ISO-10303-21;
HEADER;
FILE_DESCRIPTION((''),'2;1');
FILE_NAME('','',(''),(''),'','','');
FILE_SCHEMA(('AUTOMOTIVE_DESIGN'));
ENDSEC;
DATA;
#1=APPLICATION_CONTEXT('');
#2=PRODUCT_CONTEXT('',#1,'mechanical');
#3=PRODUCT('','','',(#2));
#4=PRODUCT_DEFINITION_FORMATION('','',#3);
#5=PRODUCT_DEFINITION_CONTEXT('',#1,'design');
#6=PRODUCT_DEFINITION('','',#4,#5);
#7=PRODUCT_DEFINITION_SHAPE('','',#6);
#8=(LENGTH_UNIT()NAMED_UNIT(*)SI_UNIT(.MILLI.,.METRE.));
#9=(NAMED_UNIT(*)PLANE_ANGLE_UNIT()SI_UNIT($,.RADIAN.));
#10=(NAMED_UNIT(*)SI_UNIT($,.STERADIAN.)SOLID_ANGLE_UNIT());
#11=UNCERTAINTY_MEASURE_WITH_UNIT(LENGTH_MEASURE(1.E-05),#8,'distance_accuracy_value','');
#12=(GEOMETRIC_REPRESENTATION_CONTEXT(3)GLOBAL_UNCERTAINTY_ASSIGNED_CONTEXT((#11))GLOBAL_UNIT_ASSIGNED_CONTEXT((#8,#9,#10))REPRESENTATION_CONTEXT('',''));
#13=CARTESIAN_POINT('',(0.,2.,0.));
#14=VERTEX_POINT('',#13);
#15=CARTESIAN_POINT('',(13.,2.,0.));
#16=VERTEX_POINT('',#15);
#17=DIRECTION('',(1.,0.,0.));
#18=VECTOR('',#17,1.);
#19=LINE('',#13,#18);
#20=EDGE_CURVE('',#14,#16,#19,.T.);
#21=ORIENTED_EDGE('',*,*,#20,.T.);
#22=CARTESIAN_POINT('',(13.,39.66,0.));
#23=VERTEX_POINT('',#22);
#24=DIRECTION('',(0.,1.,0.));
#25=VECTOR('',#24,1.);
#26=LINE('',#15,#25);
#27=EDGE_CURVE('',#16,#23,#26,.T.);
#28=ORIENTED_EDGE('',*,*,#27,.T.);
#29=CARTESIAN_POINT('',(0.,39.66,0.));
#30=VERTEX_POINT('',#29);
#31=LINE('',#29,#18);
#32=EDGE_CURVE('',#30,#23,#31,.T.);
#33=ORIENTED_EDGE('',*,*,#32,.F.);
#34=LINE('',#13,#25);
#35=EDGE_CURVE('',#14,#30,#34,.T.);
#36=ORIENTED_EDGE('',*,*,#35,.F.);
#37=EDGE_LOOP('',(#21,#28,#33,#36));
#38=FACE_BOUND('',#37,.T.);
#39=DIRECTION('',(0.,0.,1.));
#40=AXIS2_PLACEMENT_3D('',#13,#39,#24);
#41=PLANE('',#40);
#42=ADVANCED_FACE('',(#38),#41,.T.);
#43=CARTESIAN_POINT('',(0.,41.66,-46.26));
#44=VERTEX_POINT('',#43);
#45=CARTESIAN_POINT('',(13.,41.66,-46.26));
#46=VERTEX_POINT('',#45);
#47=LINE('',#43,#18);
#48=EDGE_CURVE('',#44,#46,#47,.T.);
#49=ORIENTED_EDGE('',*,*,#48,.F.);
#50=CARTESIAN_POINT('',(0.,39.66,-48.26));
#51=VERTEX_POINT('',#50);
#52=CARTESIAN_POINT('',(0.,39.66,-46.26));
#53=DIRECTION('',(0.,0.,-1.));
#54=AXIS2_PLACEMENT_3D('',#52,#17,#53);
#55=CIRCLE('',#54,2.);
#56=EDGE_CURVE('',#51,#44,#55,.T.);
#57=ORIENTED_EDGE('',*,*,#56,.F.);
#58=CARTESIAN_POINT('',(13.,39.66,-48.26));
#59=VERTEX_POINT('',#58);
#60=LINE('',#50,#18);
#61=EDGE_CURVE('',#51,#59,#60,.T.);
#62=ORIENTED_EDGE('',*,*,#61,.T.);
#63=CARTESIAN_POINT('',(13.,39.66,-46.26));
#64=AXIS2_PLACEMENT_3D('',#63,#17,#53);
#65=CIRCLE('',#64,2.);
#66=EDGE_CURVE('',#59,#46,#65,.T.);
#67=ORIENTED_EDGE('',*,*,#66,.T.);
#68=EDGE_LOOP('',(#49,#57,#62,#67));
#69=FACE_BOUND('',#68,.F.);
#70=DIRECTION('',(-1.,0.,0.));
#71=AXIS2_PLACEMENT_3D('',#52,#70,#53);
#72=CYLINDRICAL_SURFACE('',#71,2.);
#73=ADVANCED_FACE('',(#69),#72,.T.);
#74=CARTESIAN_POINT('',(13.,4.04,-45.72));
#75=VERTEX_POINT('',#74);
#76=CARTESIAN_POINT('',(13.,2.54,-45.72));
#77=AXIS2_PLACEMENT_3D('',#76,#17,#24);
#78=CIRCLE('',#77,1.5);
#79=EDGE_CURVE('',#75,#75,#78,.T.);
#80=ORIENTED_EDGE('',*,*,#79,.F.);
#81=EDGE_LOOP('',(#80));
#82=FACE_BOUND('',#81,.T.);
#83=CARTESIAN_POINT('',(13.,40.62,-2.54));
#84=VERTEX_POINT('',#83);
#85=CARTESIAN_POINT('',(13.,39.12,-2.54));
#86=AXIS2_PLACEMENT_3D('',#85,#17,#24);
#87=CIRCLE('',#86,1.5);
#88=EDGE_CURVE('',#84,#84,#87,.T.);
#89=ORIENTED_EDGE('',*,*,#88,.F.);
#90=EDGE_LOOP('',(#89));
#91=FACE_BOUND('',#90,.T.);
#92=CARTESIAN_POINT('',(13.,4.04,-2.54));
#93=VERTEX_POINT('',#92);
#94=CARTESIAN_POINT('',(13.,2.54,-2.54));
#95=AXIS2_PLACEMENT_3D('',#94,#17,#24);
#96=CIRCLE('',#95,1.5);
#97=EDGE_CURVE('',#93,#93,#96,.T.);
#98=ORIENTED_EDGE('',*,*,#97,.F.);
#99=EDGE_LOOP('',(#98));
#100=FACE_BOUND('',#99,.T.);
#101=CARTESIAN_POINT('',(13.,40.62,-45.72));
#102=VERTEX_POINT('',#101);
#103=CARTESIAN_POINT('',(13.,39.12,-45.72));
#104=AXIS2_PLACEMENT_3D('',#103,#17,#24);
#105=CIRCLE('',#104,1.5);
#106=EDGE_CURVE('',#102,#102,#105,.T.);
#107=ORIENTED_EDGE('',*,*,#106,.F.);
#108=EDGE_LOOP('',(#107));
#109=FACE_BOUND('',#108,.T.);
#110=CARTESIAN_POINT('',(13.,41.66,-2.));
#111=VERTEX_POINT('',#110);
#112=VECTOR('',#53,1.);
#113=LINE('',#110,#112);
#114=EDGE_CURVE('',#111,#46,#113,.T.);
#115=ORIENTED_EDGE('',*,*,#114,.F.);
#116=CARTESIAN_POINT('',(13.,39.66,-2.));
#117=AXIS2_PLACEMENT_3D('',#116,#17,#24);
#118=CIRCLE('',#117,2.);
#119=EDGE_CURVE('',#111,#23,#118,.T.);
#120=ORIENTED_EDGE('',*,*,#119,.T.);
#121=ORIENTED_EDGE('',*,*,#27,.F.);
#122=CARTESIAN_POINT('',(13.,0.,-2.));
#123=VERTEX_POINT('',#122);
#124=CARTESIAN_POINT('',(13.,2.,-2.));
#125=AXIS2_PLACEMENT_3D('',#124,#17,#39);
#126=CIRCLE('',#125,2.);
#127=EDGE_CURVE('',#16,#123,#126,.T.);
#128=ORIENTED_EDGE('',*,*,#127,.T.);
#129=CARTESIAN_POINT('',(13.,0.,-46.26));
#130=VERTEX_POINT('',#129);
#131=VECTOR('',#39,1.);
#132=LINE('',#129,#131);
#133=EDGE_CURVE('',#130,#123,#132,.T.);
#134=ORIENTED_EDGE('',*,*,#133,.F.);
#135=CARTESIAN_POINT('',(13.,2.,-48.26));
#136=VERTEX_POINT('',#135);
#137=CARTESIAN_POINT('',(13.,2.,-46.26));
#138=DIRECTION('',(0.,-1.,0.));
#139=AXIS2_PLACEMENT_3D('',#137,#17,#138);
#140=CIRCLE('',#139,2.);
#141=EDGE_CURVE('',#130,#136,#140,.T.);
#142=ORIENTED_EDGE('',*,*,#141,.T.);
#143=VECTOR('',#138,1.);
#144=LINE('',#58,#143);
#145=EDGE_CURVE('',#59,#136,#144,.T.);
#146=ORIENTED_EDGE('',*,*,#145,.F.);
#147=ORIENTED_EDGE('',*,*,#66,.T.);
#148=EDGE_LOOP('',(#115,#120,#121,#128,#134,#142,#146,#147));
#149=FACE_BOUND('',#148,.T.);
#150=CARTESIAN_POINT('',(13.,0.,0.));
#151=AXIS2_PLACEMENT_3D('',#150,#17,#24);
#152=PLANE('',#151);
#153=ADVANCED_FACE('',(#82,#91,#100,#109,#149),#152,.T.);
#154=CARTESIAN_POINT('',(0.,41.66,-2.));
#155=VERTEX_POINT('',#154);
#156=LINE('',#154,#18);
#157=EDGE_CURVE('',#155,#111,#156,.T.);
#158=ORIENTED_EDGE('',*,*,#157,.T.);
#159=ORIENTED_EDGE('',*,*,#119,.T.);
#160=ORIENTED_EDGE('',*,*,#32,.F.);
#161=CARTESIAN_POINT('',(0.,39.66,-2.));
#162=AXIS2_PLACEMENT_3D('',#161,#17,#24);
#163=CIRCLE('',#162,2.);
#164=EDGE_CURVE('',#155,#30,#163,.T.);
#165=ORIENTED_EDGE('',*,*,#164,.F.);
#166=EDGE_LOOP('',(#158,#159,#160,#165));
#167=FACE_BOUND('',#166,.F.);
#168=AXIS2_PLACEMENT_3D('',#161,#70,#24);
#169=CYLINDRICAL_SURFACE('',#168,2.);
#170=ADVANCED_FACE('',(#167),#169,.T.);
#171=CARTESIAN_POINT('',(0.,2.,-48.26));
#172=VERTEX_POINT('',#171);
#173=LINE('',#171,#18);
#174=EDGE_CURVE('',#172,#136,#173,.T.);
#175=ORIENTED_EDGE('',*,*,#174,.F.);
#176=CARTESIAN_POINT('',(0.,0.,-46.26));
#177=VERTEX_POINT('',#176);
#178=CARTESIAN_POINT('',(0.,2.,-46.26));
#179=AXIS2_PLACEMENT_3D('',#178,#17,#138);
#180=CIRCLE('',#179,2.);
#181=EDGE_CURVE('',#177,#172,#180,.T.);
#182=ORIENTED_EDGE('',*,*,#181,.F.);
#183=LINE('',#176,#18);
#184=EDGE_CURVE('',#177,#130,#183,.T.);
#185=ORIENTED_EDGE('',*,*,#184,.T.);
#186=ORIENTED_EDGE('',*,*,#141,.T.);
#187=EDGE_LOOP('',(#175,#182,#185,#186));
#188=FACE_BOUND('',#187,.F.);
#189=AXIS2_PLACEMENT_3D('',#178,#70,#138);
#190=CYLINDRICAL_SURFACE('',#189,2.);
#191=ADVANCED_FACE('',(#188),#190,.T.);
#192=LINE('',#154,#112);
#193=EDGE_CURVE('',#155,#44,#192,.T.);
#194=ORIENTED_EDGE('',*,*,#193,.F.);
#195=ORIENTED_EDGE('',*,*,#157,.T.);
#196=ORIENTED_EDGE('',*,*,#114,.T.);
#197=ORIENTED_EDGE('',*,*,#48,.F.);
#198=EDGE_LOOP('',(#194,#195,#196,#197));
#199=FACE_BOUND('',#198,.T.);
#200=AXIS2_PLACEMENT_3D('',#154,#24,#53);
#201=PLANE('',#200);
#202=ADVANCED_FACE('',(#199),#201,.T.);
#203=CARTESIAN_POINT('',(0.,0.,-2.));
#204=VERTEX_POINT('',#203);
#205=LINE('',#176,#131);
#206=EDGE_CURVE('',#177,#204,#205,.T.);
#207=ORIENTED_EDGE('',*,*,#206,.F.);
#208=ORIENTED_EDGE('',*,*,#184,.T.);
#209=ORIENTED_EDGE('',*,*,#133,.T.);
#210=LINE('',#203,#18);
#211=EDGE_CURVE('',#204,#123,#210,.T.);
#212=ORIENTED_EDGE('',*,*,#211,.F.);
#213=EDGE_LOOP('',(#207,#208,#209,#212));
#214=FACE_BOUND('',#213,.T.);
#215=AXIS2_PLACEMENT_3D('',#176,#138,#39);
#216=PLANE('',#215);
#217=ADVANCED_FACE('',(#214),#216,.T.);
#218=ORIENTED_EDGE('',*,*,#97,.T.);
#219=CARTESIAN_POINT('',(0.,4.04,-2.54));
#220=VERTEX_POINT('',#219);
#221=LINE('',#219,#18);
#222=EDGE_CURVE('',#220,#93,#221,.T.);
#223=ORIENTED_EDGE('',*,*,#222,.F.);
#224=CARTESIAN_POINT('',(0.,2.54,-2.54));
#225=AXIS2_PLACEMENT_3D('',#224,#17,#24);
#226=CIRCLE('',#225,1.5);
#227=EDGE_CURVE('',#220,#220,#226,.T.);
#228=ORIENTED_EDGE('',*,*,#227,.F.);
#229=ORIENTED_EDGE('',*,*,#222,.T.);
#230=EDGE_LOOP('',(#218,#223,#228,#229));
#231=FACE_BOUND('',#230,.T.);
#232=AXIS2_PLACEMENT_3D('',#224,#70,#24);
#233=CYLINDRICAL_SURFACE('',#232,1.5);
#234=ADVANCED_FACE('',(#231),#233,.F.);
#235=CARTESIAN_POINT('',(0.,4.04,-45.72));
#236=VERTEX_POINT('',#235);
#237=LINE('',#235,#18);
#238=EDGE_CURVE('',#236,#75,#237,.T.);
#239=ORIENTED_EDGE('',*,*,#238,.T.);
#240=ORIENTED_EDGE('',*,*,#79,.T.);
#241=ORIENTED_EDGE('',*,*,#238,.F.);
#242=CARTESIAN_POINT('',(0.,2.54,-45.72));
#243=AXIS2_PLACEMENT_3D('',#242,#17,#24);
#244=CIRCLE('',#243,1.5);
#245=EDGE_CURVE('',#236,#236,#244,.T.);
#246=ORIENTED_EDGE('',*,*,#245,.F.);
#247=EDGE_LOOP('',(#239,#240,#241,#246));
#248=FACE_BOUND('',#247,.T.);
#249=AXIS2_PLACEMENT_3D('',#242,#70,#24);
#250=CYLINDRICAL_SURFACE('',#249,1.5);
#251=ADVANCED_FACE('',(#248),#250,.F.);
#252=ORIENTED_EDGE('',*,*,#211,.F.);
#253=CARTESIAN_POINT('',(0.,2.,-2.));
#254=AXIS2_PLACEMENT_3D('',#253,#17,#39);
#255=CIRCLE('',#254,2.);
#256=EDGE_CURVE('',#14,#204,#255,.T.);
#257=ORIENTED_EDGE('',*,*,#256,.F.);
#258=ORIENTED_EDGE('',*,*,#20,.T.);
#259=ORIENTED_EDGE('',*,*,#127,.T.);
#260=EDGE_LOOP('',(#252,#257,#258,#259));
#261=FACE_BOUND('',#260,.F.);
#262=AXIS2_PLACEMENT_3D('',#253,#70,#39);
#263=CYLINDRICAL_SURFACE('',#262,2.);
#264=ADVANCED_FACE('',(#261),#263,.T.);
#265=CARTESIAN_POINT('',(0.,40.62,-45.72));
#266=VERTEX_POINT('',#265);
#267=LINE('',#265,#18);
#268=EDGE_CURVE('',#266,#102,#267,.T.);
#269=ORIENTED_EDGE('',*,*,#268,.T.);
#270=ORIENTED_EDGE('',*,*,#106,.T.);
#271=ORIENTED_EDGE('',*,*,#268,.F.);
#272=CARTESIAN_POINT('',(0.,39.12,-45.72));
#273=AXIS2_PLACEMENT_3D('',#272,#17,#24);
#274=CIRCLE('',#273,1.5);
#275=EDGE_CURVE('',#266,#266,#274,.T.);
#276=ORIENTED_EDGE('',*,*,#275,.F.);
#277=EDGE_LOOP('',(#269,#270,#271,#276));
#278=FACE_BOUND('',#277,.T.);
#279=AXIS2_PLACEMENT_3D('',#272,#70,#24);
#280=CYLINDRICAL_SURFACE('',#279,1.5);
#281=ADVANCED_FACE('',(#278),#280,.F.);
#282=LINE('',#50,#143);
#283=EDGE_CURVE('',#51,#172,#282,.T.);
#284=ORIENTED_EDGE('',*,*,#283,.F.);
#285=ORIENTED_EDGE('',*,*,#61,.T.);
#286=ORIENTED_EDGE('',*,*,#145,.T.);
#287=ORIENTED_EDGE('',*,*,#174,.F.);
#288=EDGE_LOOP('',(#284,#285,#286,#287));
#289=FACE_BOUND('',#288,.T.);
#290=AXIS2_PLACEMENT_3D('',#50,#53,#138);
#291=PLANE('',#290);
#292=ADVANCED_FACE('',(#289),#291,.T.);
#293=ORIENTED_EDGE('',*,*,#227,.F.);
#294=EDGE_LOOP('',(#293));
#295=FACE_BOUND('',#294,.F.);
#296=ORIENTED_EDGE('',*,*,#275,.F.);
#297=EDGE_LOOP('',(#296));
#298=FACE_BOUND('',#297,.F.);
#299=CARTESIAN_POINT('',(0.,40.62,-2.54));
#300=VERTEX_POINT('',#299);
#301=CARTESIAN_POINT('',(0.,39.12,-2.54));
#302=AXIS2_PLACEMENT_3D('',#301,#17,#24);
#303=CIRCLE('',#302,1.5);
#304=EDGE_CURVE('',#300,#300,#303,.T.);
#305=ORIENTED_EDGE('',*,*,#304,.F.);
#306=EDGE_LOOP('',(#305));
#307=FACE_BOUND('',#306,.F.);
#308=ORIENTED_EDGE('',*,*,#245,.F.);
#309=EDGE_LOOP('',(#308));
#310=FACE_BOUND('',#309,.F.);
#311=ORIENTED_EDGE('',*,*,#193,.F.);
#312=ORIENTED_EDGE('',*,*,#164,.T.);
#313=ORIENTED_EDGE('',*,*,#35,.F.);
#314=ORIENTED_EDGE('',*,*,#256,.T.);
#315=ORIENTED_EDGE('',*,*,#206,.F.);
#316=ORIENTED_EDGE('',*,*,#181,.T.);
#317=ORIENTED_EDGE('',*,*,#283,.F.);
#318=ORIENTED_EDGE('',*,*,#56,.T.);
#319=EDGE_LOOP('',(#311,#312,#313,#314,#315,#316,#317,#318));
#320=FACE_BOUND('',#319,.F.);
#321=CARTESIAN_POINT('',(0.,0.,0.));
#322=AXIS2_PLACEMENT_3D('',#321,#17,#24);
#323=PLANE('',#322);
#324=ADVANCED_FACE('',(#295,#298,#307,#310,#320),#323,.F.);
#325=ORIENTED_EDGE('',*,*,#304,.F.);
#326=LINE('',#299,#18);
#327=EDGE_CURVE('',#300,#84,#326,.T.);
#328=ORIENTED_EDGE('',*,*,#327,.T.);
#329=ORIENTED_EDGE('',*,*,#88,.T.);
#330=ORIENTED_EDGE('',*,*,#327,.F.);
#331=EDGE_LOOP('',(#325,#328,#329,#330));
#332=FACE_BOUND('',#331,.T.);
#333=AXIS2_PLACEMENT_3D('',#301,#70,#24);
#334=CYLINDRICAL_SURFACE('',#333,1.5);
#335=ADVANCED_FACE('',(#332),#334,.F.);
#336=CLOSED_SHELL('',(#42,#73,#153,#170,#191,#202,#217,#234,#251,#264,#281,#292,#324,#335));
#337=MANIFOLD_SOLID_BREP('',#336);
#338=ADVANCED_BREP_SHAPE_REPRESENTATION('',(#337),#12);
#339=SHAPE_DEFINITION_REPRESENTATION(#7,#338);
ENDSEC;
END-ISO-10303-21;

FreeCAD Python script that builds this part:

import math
import FreeCAD as App
import Part
import Sketcher
Q = App.Units.Quantity

doc = App.newDocument("Part")
params = doc.addObject("Spreadsheet::Sheet", "Params")
for row, (alias, value) in enumerate([
    ("sketch1_diameter", "3 mm"),
    ("sketch1_radius", "2 mm"),
    ("pad1_length", "13 mm"),
], start=1):
    params.set(f"A{row}", alias)
    params.set(f"B{row}", "=" + value)
    params.setAlias(f"B{row}", alias)

body = doc.addObject("PartDesign::Body", "Body")

sketch1 = body.newObject("Sketcher::SketchObject", "Sketch")
sketch1.AttachmentSupport = (doc.getObject("YZ_Plane"), [""])
sketch1.MapMode = "FlatFace"
sketch1.addGeometry(Part.LineSegment(App.Vector(39.7, 0, 0), App.Vector(2, 0, 0)), False)
sketch1.addGeometry(Part.ArcOfCircle(Part.Circle(App.Vector(2, -2, 0), App.Vector(0, 0, 1), 2), math.radians(90), math.radians(180)), False)
sketch1.addGeometry(Part.LineSegment(App.Vector(0, -2, 0), App.Vector(0, -46.3, 0)), False)
sketch1.addGeometry(Part.ArcOfCircle(Part.Circle(App.Vector(2, -46.3, 0), App.Vector(0, 0, 1), 2), math.radians(180), math.radians(270)), False)
sketch1.addGeometry(Part.LineSegment(App.Vector(2, -48.3, 0), App.Vector(39.7, -48.3, 0)), False)
sketch1.addGeometry(Part.ArcOfCircle(Part.Circle(App.Vector(39.7, -46.3, 0), App.Vector(0, 0, 1), 2), math.radians(-90), math.radians(0)), False)
sketch1.addGeometry(Part.LineSegment(App.Vector(41.7, -46.3, 0), App.Vector(41.7, -2, 0)), False)
sketch1.addGeometry(Part.ArcOfCircle(Part.Circle(App.Vector(39.7, -2, 0), App.Vector(0, 0, 1), 2), math.radians(0), math.radians(90)), False)
sketch1.addGeometry(Part.Circle(App.Vector(2.5, -45.7, 0), App.Vector(0, 0, 1), 1.5), False)
sketch1.addGeometry(Part.Circle(App.Vector(39.1, -45.7, 0), App.Vector(0, 0, 1), 1.5), False)
sketch1.addGeometry(Part.Circle(App.Vector(2.5, -2.5, 0), App.Vector(0, 0, 1), 1.5), False)
sketch1.addGeometry(Part.Circle(App.Vector(39.1, -2.5, 0), App.Vector(0, 0, 1), 1.5), False)
sketch1.addConstraint(Sketcher.Constraint("Tangent", 0, 2, 1, 1))
sketch1.addConstraint(Sketcher.Constraint("Tangent", 1, 2, 2, 1))
sketch1.addConstraint(Sketcher.Constraint("Tangent", 2, 2, 3, 1))
sketch1.addConstraint(Sketcher.Constraint("Tangent", 3, 2, 4, 1))
sketch1.addConstraint(Sketcher.Constraint("Tangent", 4, 2, 5, 1))
sketch1.addConstraint(Sketcher.Constraint("Tangent", 5, 2, 6, 1))
sketch1.addConstraint(Sketcher.Constraint("Tangent", 6, 2, 7, 1))
sketch1.addConstraint(Sketcher.Constraint("Tangent", 7, 2, 0, 1))
sketch1.addConstraint(Sketcher.Constraint("Horizontal", 0))
sketch1.addConstraint(Sketcher.Constraint("Vertical", 2))
sketch1.addConstraint(Sketcher.Constraint("Horizontal", 4))
sketch1.addConstraint(Sketcher.Constraint("Vertical", 6))
sketch1.addConstraint(Sketcher.Constraint("Equal", 1, 3))
sketch1.addConstraint(Sketcher.Constraint("Equal", 3, 5))
sketch1.addConstraint(Sketcher.Constraint("Equal", 5, 7))
sketch1.addConstraint(Sketcher.Constraint("Equal", 8, 9))
sketch1.addConstraint(Sketcher.Constraint("Equal", 9, 10))
sketch1.addConstraint(Sketcher.Constraint("Equal", 10, 11))
sketch1.addConstraint(Sketcher.Constraint("PointOnObject", 0, 2, -1))
sketch1.addConstraint(Sketcher.Constraint("PointOnObject", 1, 2, -2))
sketch1.addConstraint(Sketcher.Constraint("Horizontal", 8, 3, 9, 3))
sketch1.addConstraint(Sketcher.Constraint("Horizontal", 10, 3, 11, 3))
sketch1.addConstraint(Sketcher.Constraint("Vertical", 8, 3, 10, 3))
sketch1.addConstraint(Sketcher.Constraint("Vertical", 9, 3, 11, 3))
sketch1.addConstraint(Sketcher.Constraint("Diameter", 8, Q("3 mm")))
sketch1.addConstraint(Sketcher.Constraint("Radius", 1, Q("2 mm")))
sketch1.addConstraint(Sketcher.Constraint("DistanceY", 3, 2, -1, 1, Q("48.26 mm")))
sketch1.addConstraint(Sketcher.Constraint("DistanceX", -1, 1, 5, 2, Q("41.66 mm")))
sketch1.addConstraint(Sketcher.Constraint("DistanceX", 8, 3, 9, 3, Q("36.58 mm")))
sketch1.addConstraint(Sketcher.Constraint("DistanceY", 8, 3, 10, 3, Q("43.18 mm")))
sketch1.addConstraint(Sketcher.Constraint("DistanceX", -1, 1, 8, 3, Q("2.54 mm")))
sketch1.addConstraint(Sketcher.Constraint("DistanceY", 8, 3, -1, 1, Q("45.72 mm")))
sketch1.setExpression("Constraints[24]", "Params.sketch1_diameter")
sketch1.setExpression("Constraints[25]", "Params.sketch1_radius")
pad1 = body.newObject("PartDesign::Pad", "Pad")
pad1.Profile = sketch1
pad1.setExpression("Length", "Params.pad1_length")

doc.recompute()
